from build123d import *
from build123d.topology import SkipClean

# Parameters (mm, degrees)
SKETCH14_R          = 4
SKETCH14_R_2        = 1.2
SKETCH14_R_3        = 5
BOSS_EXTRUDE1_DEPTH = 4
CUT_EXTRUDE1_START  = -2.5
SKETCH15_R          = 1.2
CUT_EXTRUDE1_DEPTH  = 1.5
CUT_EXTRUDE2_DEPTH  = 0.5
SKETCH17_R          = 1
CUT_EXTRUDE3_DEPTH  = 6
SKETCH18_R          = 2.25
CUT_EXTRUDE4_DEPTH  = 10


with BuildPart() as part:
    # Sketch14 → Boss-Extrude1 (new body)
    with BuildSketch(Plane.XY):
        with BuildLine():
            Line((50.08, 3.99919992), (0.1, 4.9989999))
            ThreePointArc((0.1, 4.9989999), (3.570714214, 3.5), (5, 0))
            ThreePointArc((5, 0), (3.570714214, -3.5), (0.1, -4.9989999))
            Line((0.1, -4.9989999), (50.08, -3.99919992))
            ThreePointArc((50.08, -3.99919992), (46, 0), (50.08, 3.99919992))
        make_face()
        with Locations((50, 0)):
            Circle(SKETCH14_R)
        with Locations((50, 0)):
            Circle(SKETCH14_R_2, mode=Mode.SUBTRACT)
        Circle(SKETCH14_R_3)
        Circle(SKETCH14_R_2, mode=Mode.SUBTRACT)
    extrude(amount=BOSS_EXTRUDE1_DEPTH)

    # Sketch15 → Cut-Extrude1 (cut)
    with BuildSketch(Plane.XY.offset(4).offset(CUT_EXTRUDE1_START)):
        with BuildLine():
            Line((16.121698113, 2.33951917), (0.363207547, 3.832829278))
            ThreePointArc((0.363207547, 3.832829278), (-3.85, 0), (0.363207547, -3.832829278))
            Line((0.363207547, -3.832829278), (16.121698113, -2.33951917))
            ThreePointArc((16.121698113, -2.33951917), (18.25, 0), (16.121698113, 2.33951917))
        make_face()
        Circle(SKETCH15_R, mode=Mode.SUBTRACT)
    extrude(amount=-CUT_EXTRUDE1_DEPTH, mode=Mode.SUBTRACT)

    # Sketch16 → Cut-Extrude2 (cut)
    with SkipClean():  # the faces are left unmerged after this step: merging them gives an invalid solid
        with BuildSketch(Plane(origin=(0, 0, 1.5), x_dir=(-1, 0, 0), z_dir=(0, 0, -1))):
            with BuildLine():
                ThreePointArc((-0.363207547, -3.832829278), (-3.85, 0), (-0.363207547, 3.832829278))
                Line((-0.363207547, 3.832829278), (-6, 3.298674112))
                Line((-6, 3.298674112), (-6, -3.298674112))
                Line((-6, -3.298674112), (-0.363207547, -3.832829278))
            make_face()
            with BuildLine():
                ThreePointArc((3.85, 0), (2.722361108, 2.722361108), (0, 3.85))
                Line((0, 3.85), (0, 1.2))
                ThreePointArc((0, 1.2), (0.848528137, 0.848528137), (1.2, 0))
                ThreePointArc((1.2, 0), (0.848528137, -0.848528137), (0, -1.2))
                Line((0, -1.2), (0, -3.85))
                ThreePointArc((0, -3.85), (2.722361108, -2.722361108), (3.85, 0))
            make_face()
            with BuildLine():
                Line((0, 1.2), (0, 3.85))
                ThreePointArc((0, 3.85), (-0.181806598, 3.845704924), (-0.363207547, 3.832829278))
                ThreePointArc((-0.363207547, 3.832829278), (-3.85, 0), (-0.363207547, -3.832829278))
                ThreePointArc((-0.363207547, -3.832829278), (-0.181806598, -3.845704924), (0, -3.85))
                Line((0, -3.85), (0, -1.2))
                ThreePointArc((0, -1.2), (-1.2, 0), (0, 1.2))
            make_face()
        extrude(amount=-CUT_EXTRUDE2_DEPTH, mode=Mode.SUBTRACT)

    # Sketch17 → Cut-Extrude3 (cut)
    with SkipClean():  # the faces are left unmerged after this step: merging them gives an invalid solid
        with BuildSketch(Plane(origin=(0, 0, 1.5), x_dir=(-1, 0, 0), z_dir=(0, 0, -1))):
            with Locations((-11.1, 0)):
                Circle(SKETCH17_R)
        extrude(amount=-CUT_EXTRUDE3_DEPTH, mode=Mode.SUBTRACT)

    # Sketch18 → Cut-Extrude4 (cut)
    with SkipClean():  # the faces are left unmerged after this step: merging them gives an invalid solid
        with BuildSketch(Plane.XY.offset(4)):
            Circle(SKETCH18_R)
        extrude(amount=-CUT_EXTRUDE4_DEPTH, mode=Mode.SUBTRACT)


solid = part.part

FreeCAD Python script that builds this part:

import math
import FreeCAD as App
import Part
import Sketcher

V = App.Vector

doc = App.newDocument("Part")
body = doc.addObject("PartDesign::Body", "Body")

sketch1 = body.newObject("Sketcher::SketchObject", "Sketch")
sketch1.AttachmentSupport = (doc.getObject("XY_Plane"), [""])
sketch1.MapMode = "FlatFace"
sketch1.addGeometry(Part.LineSegment(V(50.1, 4, 0), V(0.1, 5, 0)), False)
sketch1.addGeometry(Part.ArcOfCircle(Part.Circle(V(0, 0, 0), V(0, 0, 1), 5), math.radians(89), math.radians(271)), False)
sketch1.addGeometry(Part.LineSegment(V(0.1, -5, 0), V(50.1, -4, 0)), False)
sketch1.addGeometry(Part.ArcOfCircle(Part.Circle(V(50, 0, 0), V(0, 0, 1), 4), math.radians(-89), math.radians(89)), False)
sketch1.addGeometry(Part.Circle(V(0, 0, 0), V(0, 0, 1), 1.2), False)
sketch1.addGeometry(Part.Circle(V(50, 0, 0), V(0, 0, 1), 1.2), False)
sketch1.addConstraint(Sketcher.Constraint("Tangent", 0, 2, 1, 1))
sketch1.addConstraint(Sketcher.Constraint("Tangent", 1, 2, 2, 1))
sketch1.addConstraint(Sketcher.Constraint("Tangent", 2, 2, 3, 1))
sketch1.addConstraint(Sketcher.Constraint("Tangent", 3, 2, 0, 1))
sketch1.addConstraint(Sketcher.Constraint("Coincident", 1, 3, -1, 1))
sketch1.addConstraint(Sketcher.Constraint("Coincident", 4, 3, -1, 1))
sketch1.addConstraint(Sketcher.Constraint("Coincident", 5, 3, 3, 3))
sketch1.addConstraint(Sketcher.Constraint("Equal", 4, 5))
sketch1.addConstraint(Sketcher.Constraint("PointOnObject", 3, 3, -1))
sketch1.addConstraint(Sketcher.Constraint("Radius", 1, 5.0))
sketch1.addConstraint(Sketcher.Constraint("Radius", 3, 4.0))
sketch1.addConstraint(Sketcher.Constraint("Diameter", 4, 2.4))
sketch1.addConstraint(Sketcher.Constraint("DistanceX", -1, 1, 3, 3, 50.0))
pad1 = body.newObject("PartDesign::Pad", "Pad")
pad1.Profile = sketch1
pad1.Length = 4

sketch2 = body.newObject("Sketcher::SketchObject", "Sketch001")
sketch2.AttachmentSupport = (doc.getObject("XY_Plane"), [""])
sketch2.MapMode = "FlatFace"
sketch2.AttachmentOffset = App.Placement(V(0, 0, 1.5), App.Rotation())
sketch2.addGeometry(Part.LineSegment(V(16.1, 2.3, 0), V(0.4, 3.8, 0)), False)
sketch2.addGeometry(Part.ArcOfCircle(Part.Circle(V(0, 0, 0), V(0, 0, 1), 3.9), math.radians(85), math.radians(275)), False)
sketch2.addGeometry(Part.LineSegment(V(0.4, -3.8, 0), V(16.1, -2.3, 0)), False)
sketch2.addGeometry(Part.ArcOfCircle(Part.Circle(V(15.9, 0, 0), V(0, 0, 1), 2.4), math.radians(-85), math.radians(85)), False)
sketch2.addGeometry(Part.Circle(V(0, 0, 0), V(0, 0, 1), 1.2), False)
sketch2.addConstraint(Sketcher.Constraint("Tangent", 0, 2, 1, 1))
sketch2.addConstraint(Sketcher.Constraint("Tangent", 1, 2, 2, 1))
sketch2.addConstraint(Sketcher.Constraint("Tangent", 2, 2, 3, 1))
sketch2.addConstraint(Sketcher.Constraint("Tangent", 3, 2, 0, 1))
sketch2.addConstraint(Sketcher.Constraint("Coincident", 1, 3, -1, 1))
sketch2.addConstraint(Sketcher.Constraint("Coincident", 4, 3, -1, 1))
sketch2.addConstraint(Sketcher.Constraint("PointOnObject", 3, 3, -1))
sketch2.addConstraint(Sketcher.Constraint("Diameter", 4, 2.4))
sketch2.addConstraint(Sketcher.Constraint("Radius", 1, 3.85))
sketch2.addConstraint(Sketcher.Constraint("Radius", 3, 2.35))
sketch2.addConstraint(Sketcher.Constraint("DistanceX", -1, 1, 3, 3, 15.9))
pocket1 = body.newObject("PartDesign::Pocket", "Pocket")
pocket1.Profile = sketch2
pocket1.Length = 1.5

sketch3 = body.newObject("Sketcher::SketchObject", "Sketch002")
sketch3.AttachmentSupport = (doc.getObject("XY_Plane"), [""])
sketch3.MapMode = "FlatFace"
sketch3.AttachmentOffset = App.Placement(V(0, 0, 1.5), App.Rotation())
sketch3.addGeometry(Part.ArcOfCircle(Part.Circle(V(0, 0, 0), V(0, 0, 1), 3.85), math.radians(-85), math.radians(85)), False)
sketch3.addGeometry(Part.LineSegment(V(0.36, 3.83, 0), V(6, 3.3, 0)), False)
sketch3.addGeometry(Part.LineSegment(V(6, 3.3, 0), V(6, -3.3, 0)), False)
sketch3.addGeometry(Part.LineSegment(V(6, -3.3, 0), V(0.36, -3.83, 0)), False)
sketch3.addGeometry(Part.ArcOfCircle(Part.Circle(V(0, 0, 0), V(0, 0, 1), 3.85), math.radians(90), math.radians(180)), False)
sketch3.addGeometry(Part.LineSegment(V(0, 3.85, 0), V(0, 1.2, 0)), False)
sketch3.addGeometry(Part.ArcOfCircle(Part.Circle(V(0, 0, 0), V(0, 0, 1), 1.2), math.radians(90), math.radians(180)), False)
sketch3.addGeometry(Part.ArcOfCircle(Part.Circle(V(0, 0, 0), V(0, 0, 1), 1.2), math.radians(-180), math.radians(-90)), False)
sketch3.addGeometry(Part.LineSegment(V(0, -1.2, 0), V(0, -3.85, 0)), False)
sketch3.addGeometry(Part.ArcOfCircle(Part.Circle(V(0, 0, 0), V(0, 0, 1), 3.85), math.radians(180), math.radians(270)), False)
sketch3.addGeometry(Part.LineSegment(V(0, 1.2, 0), V(0, 3.85, 0)), False)
sketch3.addGeometry(Part.ArcOfCircle(Part.Circle(V(0, 0, 0), V(0, 0, 1), 3.85), math.radians(84.59), math.radians(90)), False)
sketch3.addGeometry(Part.ArcOfCircle(Part.Circle(V(0, 0, 0), V(0, 0, 1), 3.85), math.radians(-85), math.radians(85)), False)
sketch3.addGeometry(Part.ArcOfCircle(Part.Circle(V(0, 0, 0), V(0, 0, 1), 3.85), math.radians(-90), math.radians(-84.59)), False)
sketch3.addGeometry(Part.LineSegment(V(0, -3.85, 0), V(0, -1.2, 0)), False)
sketch3.addGeometry(Part.ArcOfCircle(Part.Circle(V(0, 0, 0), V(0, 0, 1), 1.2), math.radians(-90), math.radians(90)), False)
sketch3.addConstraint(Sketcher.Constraint("Tangent", 0, 2, 1, 1))
sketch3.addConstraint(Sketcher.Constraint("Coincident", 1, 2, 2, 1))
sketch3.addConstraint(Sketcher.Constraint("Coincident", 2, 2, 3, 1))
sketch3.addConstraint(Sketcher.Constraint("Tangent", 3, 2, 0, 1))
sketch3.addConstraint(Sketcher.Constraint("Coincident", 4, 1, 5, 1))
sketch3.addConstraint(Sketcher.Constraint("Coincident", 5, 2, 6, 1))
sketch3.addConstraint(Sketcher.Constraint("Tangent", 6, 2, 7, 1))
sketch3.addConstraint(Sketcher.Constraint("Coincident", 7, 2, 8, 1))
sketch3.addConstraint(Sketcher.Constraint("Coincident", 8, 2, 9, 2))
sketch3.addConstraint(Sketcher.Constraint("Tangent", 9, 1, 4, 2))
sketch3.addConstraint(Sketcher.Constraint("Coincident", 10, 2, 11, 2))
sketch3.addConstraint(Sketcher.Constraint("Tangent", 11, 1, 12, 2))
sketch3.addConstraint(Sketcher.Constraint("Tangent", 12, 1, 13, 2))
sketch3.addConstraint(Sketcher.Constraint("Coincident", 13, 1, 14, 1))
sketch3.addConstraint(Sketcher.Constraint("Coincident", 14, 2, 15, 1))
sketch3.addConstraint(Sketcher.Constraint("Coincident", 15, 2, 10, 1))
sketch3.addConstraint(Sketcher.Constraint("Vertical", 2))
sketch3.addConstraint(Sketcher.Constraint("Vertical", 5))
sketch3.addConstraint(Sketcher.Constraint("Vertical", 8))
sketch3.addConstraint(Sketcher.Constraint("Vertical", 10))
sketch3.addConstraint(Sketcher.Constraint("Vertical", 14))
sketch3.addConstraint(Sketcher.Constraint("Coincident", 0, 3, -1, 1))
sketch3.addConstraint(Sketcher.Constraint("Coincident", 4, 3, -1, 1))
sketch3.addConstraint(Sketcher.Constraint("Coincident", 6, 3, -1, 1))
sketch3.addConstraint(Sketcher.Constraint("Coincident", 11, 3, -1, 1))
sketch3.addConstraint(Sketcher.Constraint("Coincident", 13, 3, -1, 1))
sketch3.addConstraint(Sketcher.Constraint("Coincident", 15, 3, -1, 1))
sketch3.addConstraint(Sketcher.Constraint("Coincident", 10, 2, 4, 1))
sketch3.addConstraint(Sketcher.Constraint("Coincident", 11, 1, 0, 2))
sketch3.addConstraint(Sketcher.Constraint("Coincident", 13, 1, 8, 2))
sketch3.addConstraint(Sketcher.Constraint("Equal", 6, 7))
sketch3.addConstraint(Sketcher.Constraint("Equal", 7, 15))
sketch3.addConstraint(Sketcher.Constraint("PointOnObject", 4, 1, -2))
sketch3.addConstraint(Sketcher.Constraint("PointOnObject", 6, 2, -1))
sketch3.addConstraint(Sketcher.Constraint("PointOnObject", 7, 2, -2))
sketch3.addConstraint(Sketcher.Constraint("PointOnObject", 9, 1, -1))
sketch3.addConstraint(Sketcher.Constraint("Vertical", 0, 2, 3, 2))
sketch3.addConstraint(Sketcher.Constraint("Vertical", 11, 1, 12, 1))
sketch3.addConstraint(Sketcher.Constraint("Radius", 6, 1.2))
sketch3.addConstraint(Sketcher.Constraint("Radius", 0, 3.85))
sketch3.addConstraint(Sketcher.Constraint("DistanceX", -1, 1, 1, 2, 6.0))
sketch3.addConstraint(Sketcher.Constraint("DistanceY", 2, 2, 2, 1, 6.597348))
pocket2 = body.newObject("PartDesign::Pocket", "Pocket001")
pocket2.Profile = sketch3
pocket2.Length = 0.5
pocket2.Reversed = True

sketch4 = body.newObject("Sketcher::SketchObject", "Sketch003")
sketch4.AttachmentSupport = (doc.getObject("XY_Plane"), [""])
sketch4.MapMode = "FlatFace"
sketch4.AttachmentOffset = App.Placement(V(0, 0, 1.5), App.Rotation())
sketch4.addGeometry(Part.Circle(V(11.1, 0, 0), V(0, 0, 1), 1), False)
sketch4.addConstraint(Sketcher.Constraint("PointOnObject", 0, 3, -1))
sketch4.addConstraint(Sketcher.Constraint("Diameter", 0, 2.0))
sketch4.addConstraint(Sketcher.Constraint("DistanceX", -1, 1, 0, 3, 11.1))
pocket3 = body.newObject("PartDesign::Pocket", "Pocket002")
pocket3.Profile = sketch4
pocket3.Length = 6
pocket3.Reversed = True

sketch5 = body.newObject("Sketcher::SketchObject", "Sketch004")
sketch5.AttachmentSupport = (doc.getObject("XY_Plane"), [""])
sketch5.MapMode = "FlatFace"
sketch5.AttachmentOffset = App.Placement(V(0, 0, 4), App.Rotation())
sketch5.addGeometry(Part.Circle(V(0, 0, 0), V(0, 0, 1), 2.2), False)
sketch5.addConstraint(Sketcher.Constraint("Coincident", 0, 3, -1, 1))
sketch5.addConstraint(Sketcher.Constraint("Diameter", 0, 4.5))
pocket4 = body.newObject("PartDesign::Pocket", "Pocket003")
pocket4.Profile = sketch5
pocket4.Length = 10

doc.recompute()
